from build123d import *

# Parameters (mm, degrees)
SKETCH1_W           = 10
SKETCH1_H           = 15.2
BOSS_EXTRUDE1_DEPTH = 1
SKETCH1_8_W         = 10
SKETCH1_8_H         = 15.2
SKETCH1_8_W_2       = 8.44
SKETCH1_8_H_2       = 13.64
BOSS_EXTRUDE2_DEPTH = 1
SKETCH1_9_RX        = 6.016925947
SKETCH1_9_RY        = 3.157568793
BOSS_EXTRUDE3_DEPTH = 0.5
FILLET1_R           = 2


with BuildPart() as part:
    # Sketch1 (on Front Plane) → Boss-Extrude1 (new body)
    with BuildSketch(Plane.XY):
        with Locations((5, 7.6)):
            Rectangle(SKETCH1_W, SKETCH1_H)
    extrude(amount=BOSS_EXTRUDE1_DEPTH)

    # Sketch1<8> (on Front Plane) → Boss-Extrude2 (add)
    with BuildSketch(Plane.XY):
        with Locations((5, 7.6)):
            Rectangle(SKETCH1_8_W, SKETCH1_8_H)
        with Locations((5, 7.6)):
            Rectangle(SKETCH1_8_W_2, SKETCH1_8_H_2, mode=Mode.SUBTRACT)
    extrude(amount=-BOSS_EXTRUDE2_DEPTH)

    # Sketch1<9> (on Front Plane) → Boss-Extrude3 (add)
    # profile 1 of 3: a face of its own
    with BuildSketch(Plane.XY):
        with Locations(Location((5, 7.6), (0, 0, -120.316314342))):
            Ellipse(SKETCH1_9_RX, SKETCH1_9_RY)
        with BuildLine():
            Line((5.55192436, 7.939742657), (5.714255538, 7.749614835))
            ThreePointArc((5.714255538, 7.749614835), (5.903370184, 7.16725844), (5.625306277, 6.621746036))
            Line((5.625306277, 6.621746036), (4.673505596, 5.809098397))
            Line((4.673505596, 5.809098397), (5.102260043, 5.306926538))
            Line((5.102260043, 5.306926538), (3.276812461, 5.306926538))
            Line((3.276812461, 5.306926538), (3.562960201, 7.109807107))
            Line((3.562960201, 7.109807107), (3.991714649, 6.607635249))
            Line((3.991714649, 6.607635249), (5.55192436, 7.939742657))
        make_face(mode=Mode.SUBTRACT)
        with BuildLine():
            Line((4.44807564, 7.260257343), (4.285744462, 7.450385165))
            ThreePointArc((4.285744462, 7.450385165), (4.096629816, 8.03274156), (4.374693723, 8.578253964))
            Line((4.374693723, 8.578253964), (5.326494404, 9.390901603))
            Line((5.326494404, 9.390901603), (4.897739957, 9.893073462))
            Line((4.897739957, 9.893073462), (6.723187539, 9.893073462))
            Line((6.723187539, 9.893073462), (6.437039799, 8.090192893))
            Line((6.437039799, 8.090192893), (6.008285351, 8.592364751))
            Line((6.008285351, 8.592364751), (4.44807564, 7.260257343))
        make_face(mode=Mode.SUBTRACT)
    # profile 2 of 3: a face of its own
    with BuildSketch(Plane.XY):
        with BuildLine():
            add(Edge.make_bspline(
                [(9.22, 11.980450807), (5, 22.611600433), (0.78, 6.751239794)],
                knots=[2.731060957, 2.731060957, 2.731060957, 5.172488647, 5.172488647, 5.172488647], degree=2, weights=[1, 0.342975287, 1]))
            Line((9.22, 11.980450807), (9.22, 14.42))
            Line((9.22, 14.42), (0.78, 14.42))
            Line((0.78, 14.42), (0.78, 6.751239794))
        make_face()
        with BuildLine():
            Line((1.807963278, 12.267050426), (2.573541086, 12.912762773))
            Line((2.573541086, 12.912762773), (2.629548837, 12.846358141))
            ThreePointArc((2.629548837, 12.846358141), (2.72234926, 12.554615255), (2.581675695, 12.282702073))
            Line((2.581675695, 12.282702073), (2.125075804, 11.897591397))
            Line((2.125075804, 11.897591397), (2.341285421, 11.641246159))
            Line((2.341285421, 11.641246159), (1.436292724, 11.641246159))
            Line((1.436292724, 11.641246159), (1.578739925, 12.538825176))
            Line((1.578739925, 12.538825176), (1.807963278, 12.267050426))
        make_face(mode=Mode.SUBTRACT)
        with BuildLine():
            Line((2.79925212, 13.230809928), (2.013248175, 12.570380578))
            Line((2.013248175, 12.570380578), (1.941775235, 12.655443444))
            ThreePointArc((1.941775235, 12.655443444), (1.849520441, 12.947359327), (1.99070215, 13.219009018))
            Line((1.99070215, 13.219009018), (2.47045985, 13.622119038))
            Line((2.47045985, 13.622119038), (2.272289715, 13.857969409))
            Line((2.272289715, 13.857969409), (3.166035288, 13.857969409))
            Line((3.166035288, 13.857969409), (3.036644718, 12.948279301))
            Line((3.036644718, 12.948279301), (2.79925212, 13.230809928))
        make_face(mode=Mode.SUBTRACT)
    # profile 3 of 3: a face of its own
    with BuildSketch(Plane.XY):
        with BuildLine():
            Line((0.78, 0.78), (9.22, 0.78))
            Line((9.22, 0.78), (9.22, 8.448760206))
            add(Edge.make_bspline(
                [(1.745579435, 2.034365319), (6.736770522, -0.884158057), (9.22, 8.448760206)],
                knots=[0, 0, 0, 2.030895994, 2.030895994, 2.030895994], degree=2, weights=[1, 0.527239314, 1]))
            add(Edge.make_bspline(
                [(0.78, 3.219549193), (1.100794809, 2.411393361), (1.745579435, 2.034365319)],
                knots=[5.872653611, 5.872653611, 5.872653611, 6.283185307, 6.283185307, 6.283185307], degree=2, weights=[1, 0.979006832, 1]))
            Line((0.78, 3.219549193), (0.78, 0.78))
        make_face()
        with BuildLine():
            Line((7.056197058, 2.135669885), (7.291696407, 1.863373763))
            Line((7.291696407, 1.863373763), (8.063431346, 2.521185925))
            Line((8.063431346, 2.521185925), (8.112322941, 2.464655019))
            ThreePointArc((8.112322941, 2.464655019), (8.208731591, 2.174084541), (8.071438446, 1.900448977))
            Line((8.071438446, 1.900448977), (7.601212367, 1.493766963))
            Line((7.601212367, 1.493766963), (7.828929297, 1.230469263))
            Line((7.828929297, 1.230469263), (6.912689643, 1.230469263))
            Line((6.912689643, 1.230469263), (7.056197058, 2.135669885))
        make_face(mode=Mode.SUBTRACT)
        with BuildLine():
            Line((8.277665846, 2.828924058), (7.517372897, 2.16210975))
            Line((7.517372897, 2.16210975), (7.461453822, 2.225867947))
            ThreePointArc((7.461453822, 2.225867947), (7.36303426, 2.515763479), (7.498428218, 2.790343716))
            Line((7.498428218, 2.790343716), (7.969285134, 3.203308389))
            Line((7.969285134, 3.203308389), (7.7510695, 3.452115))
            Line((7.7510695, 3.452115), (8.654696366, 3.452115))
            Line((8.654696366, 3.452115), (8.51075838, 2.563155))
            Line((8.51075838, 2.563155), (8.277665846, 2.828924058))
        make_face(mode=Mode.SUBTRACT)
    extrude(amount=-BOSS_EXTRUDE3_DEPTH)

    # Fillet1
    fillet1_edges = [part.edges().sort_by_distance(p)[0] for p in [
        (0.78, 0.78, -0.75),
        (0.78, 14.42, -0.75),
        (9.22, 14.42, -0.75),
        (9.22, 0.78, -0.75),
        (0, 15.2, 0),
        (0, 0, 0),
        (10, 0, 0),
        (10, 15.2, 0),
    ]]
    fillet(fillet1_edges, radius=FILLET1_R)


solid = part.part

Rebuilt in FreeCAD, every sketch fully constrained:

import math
import FreeCAD as App
import Part
import Sketcher
from FreeCAD import Vector
Q = App.Units.Quantity


def edges_at(feature, points):
    """Names of the edges that pass closest to the given points."""
    edges = feature.Shape.Edges
    near = lambda p: min(range(len(edges)), key=lambda i: edges[i].distToShape(Part.Vertex(*p))[0])
    return sorted({f"Edge{near(p) + 1}" for p in points})


def add_polygon(sketch, points):
    """Adds a closed chain of lines whose ends are joined by coincident constraints."""
    first, n = sketch.GeometryCount, len(points)
    for a, b in zip(points, points[1:] + points[:1]):
        sketch.addGeometry(Part.LineSegment(App.Vector(*a, 0), App.Vector(*b, 0)), False)
    for i in range(n):
        sketch.addConstraint(Sketcher.Constraint("Coincident", first + i, 2, first + (i + 1) % n, 1))

doc = App.newDocument("Part")
body = doc.addObject("PartDesign::Body", "Body")

# Sketch on XY plane
sketch1 = doc.addObject("Sketcher::SketchObject", "Sketch")
body.addObject(sketch1)
sketch1.AttachmentSupport = (doc.XY_Plane, [""])
sketch1.MapMode = "FlatFace"
add_polygon(sketch1, [(0, 15), (0, 0), (10, 0), (10, 15)])  # lines 0-3
sketch1.addConstraint(Sketcher.Constraint("Vertical", 0))
sketch1.addConstraint(Sketcher.Constraint("Horizontal", 1))
sketch1.addConstraint(Sketcher.Constraint("Vertical", 2))
sketch1.addConstraint(Sketcher.Constraint("Horizontal", 3))
sketch1.addConstraint(Sketcher.Constraint("Coincident", 0, 2, -1, 1))
sketch1.addConstraint(Sketcher.Constraint("DistanceX", 1, 1, 1, 2, Q("10 mm")))
sketch1.addConstraint(Sketcher.Constraint("DistanceY", 0, 2, 0, 1, Q("15.2 mm")))
pad1 = doc.addObject("PartDesign::Pad", "Pad")
body.addObject(pad1)
pad1.Profile = sketch1
pad1.Length = 1

# Sketch on XY plane
sketch2 = doc.addObject("Sketcher::SketchObject", "Sketch001")
body.addObject(sketch2)
sketch2.AttachmentSupport = (doc.XY_Plane, [""])
sketch2.MapMode = "FlatFace"
add_polygon(sketch2, [(0, 15), (0, 0), (10, 0), (10, 15)])  # lines 0-3
add_polygon(sketch2, [(9, 1), (1, 1), (1, 14), (9, 14)])  # lines 4-7
sketch2.addConstraint(Sketcher.Constraint("Vertical", 0))
sketch2.addConstraint(Sketcher.Constraint("Horizontal", 1))
sketch2.addConstraint(Sketcher.Constraint("Vertical", 2))
sketch2.addConstraint(Sketcher.Constraint("Horizontal", 3))
sketch2.addConstraint(Sketcher.Constraint("Horizontal", 4))
sketch2.addConstraint(Sketcher.Constraint("Vertical", 5))
sketch2.addConstraint(Sketcher.Constraint("Horizontal", 6))
sketch2.addConstraint(Sketcher.Constraint("Vertical", 7))
sketch2.addConstraint(Sketcher.Constraint("Coincident", 0, 2, -1, 1))
sketch2.addConstraint(Sketcher.Constraint("DistanceX", 1, 1, 1, 2, Q("10 mm")))
sketch2.addConstraint(Sketcher.Constraint("DistanceY", 0, 2, 0, 1, Q("15.2 mm")))
sketch2.addConstraint(Sketcher.Constraint("DistanceX", 4, 2, 4, 1, Q("8.44 mm")))
sketch2.addConstraint(Sketcher.Constraint("DistanceY", 5, 1, 5, 2, Q("13.64 mm")))
sketch2.addConstraint(Sketcher.Constraint("DistanceX", -1, 1, 4, 2, Q("0.78 mm")))
sketch2.addConstraint(Sketcher.Constraint("DistanceY", -1, 1, 4, 2, Q("0.78 mm")))
pad2 = doc.addObject("PartDesign::Pad", "Pad001")
body.addObject(pad2)
pad2.Profile = sketch2
pad2.Length = 1
pad2.Reversed = True

# Sketch on XY plane
sketch3 = doc.addObject("Sketcher::SketchObject", "Sketch002")
body.addObject(sketch3)
sketch3.AttachmentSupport = (doc.XY_Plane, [""])
sketch3.MapMode = "FlatFace"
sketch3.addGeometry(Part.Ellipse(Vector(1.962816, 2.405878, 0), Vector(7.725777, 6.006143, 0), Vector(5, 7.6, 0)), False)
sketch3.addGeometry(Part.LineSegment(Vector(6.008285, 8.592365, 0), Vector(4.448076, 7.260257, 0)), False)
sketch3.addGeometry(Part.LineSegment(Vector(4.448076, 7.260257, 0), Vector(4.285744, 7.450385, 0)), False)
sketch3.addGeometry(Part.ArcOfCircle(Part.Circle(Vector(4.894153, 7.969845, 0), Vector(0, 0, 1), 0.8), math.radians(130.490707), math.radians(220.490707)), False)
sketch3.addGeometry(Part.LineSegment(Vector(4.374694, 8.578254, 0), Vector(5.326494, 9.390902, 0)), False)
sketch3.addGeometry(Part.LineSegment(Vector(5.326494, 9.390902, 0), Vector(4.89774, 9.893073, 0)), False)
sketch3.addGeometry(Part.LineSegment(Vector(4.89774, 9.893073, 0), Vector(6.723188, 9.893073, 0)), False)
sketch3.addGeometry(Part.LineSegment(Vector(6.723188, 9.893073, 0), Vector(6.43704, 8.090193, 0)), False)
sketch3.addGeometry(Part.LineSegment(Vector(6.43704, 8.090193, 0), Vector(6.008285, 8.592365, 0)), False)
sketch3.addGeometry(Part.LineSegment(Vector(3.991715, 6.607635, 0), Vector(5.551924, 7.939743, 0)), False)
sketch3.addGeometry(Part.LineSegment(Vector(5.551924, 7.939743, 0), Vector(5.714256, 7.749615, 0)), False)
sketch3.addGeometry(Part.ArcOfCircle(Part.Circle(Vector(5.105847, 7.230155, 0), Vector(0, 0, 1), 0.8), math.radians(-49.509293), math.radians(40.490707)), False)
sketch3.addGeometry(Part.LineSegment(Vector(5.625306, 6.621746, 0), Vector(4.673506, 5.809098, 0)), False)
sketch3.addGeometry(Part.LineSegment(Vector(4.673506, 5.809098, 0), Vector(5.10226, 5.306927, 0)), False)
sketch3.addGeometry(Part.LineSegment(Vector(5.10226, 5.306927, 0), Vector(3.276812, 5.306927, 0)), False)
sketch3.addGeometry(Part.LineSegment(Vector(3.276812, 5.306927, 0), Vector(3.56296, 7.109807, 0)), False)
sketch3.addGeometry(Part.LineSegment(Vector(3.56296, 7.109807, 0), Vector(3.991715, 6.607635, 0)), False)
sketch3.addGeometry(Part.BSplineCurve([Vector(9.22, 11.980451, 0), Vector(5, 22.6116, 0), Vector(0.78, 6.75124, 0)], [3, 3], [2.731060957, 5.172488647], False, 2, [1, 0.342975287, 1], False), False)
sketch3.addGeometry(Part.LineSegment(Vector(9.22, 11.980451, 0), Vector(9.22, 14.42, 0)), False)
sketch3.addGeometry(Part.LineSegment(Vector(9.22, 14.42, 0), Vector(0.78, 14.42, 0)), False)
sketch3.addGeometry(Part.LineSegment(Vector(0.78, 14.42, 0), Vector(0.78, 6.75124, 0)), False)
sketch3.addGeometry(Part.LineSegment(Vector(1.807963, 12.26705, 0), Vector(2.573541, 12.912763, 0)), False)
sketch3.addGeometry(Part.LineSegment(Vector(2.573541, 12.912763, 0), Vector(2.629549, 12.846358, 0)), False)
sketch3.addGeometry(Part.ArcOfCircle(Part.Circle(Vector(2.323784, 12.588467, 0), Vector(0, 0, 1), 0.4), math.radians(-49.854666), math.radians(40.145334)), False)
sketch3.addGeometry(Part.LineSegment(Vector(2.581676, 12.282702, 0), Vector(2.125076, 11.897591, 0)), False)
sketch3.addGeometry(Part.LineSegment(Vector(2.125076, 11.897591, 0), Vector(2.341285, 11.641246, 0)), False)
sketch3.addGeometry(Part.LineSegment(Vector(2.341285, 11.641246, 0), Vector(1.436293, 11.641246, 0)), False)
sketch3.addGeometry(Part.LineSegment(Vector(1.436293, 11.641246, 0), Vector(1.57874, 12.538825, 0)), False)
sketch3.addGeometry(Part.LineSegment(Vector(1.57874, 12.538825, 0), Vector(1.807963, 12.26705, 0)), False)
sketch3.addGeometry(Part.LineSegment(Vector(2.799252, 13.23081, 0), Vector(2.013248, 12.570381, 0)), False)
sketch3.addGeometry(Part.LineSegment(Vector(2.013248, 12.570381, 0), Vector(1.941775, 12.655443, 0)), False)
sketch3.addGeometry(Part.ArcOfCircle(Part.Circle(Vector(2.248021, 12.912763, 0), Vector(0, 0, 1), 0.4), math.radians(130.038209), math.radians(220.038209)), False)
sketch3.addGeometry(Part.LineSegment(Vector(1.990702, 13.219009, 0), Vector(2.47046, 13.622119, 0)), False)
sketch3.addGeometry(Part.LineSegment(Vector(2.47046, 13.622119, 0), Vector(2.27229, 13.857969, 0)), False)
sketch3.addGeometry(Part.LineSegment(Vector(2.27229, 13.857969, 0), Vector(3.166035, 13.857969, 0)), False)
sketch3.addGeometry(Part.LineSegment(Vector(3.166035, 13.857969, 0), Vector(3.036645, 12.948279, 0)), False)
sketch3.addGeometry(Part.LineSegment(Vector(3.036645, 12.948279, 0), Vector(2.799252, 13.23081, 0)), False)
sketch3.addGeometry(Part.LineSegment(Vector(0.78, 0.78, 0), Vector(9.22, 0.78, 0)), False)
sketch3.addGeometry(Part.LineSegment(Vector(9.22, 0.78, 0), Vector(9.22, 8.44876, 0)), False)
sketch3.addGeometry(Part.BSplineCurve([Vector(1.745579, 2.034365, 0), Vector(6.736771, -0.884158, 0), Vector(9.22, 8.44876, 0)], [3, 3], [0, 2.030895994], False, 2, [1, 0.527239314, 1], False), False)
sketch3.addGeometry(Part.BSplineCurve([Vector(0.78, 3.219549, 0), Vector(1.100795, 2.411393, 0), Vector(1.745579, 2.034365, 0)], [3, 3], [5.872653611, 6.283185307], False, 2, [1, 0.979006832, 1], False), False)
sketch3.addGeometry(Part.LineSegment(Vector(0.78, 3.219549, 0), Vector(0.78, 0.78, 0)), False)
sketch3.addGeometry(Part.LineSegment(Vector(6.91269, 1.230469, 0), Vector(7.056197, 2.13567, 0)), False)
sketch3.addGeometry(Part.LineSegment(Vector(7.056197, 2.13567, 0), Vector(7.291696, 1.863374, 0)), False)
sketch3.addGeometry(Part.LineSegment(Vector(7.291696, 1.863374, 0), Vector(8.063431, 2.521186, 0)), False)
sketch3.addGeometry(Part.LineSegment(Vector(8.063431, 2.521186, 0), Vector(8.112323, 2.464655, 0)), False)
sketch3.addGeometry(Part.ArcOfCircle(Part.Circle(Vector(7.809778, 2.202994, 0), Vector(0, 0, 1), 0.4), math.radians(-49.144624), math.radians(40.855376)), False)
sketch3.addGeometry(Part.LineSegment(Vector(8.071438, 1.900449, 0), Vector(7.601212, 1.493767, 0)), False)
sketch3.addGeometry(Part.LineSegment(Vector(7.601212, 1.493767, 0), Vector(7.828929, 1.230469, 0)), False)
sketch3.addGeometry(Part.LineSegment(Vector(7.828929, 1.230469, 0), Vector(6.91269, 1.230469, 0)), False)
sketch3.addGeometry(Part.LineSegment(Vector(8.510758, 2.563155, 0), Vector(8.277666, 2.828924, 0)), False)
sketch3.addGeometry(Part.LineSegment(Vector(8.277666, 2.828924, 0), Vector(7.517373, 2.16211, 0)), False)
sketch3.addGeometry(Part.LineSegment(Vector(7.517373, 2.16211, 0), Vector(7.461454, 2.225868, 0)), False)
sketch3.addGeometry(Part.ArcOfCircle(Part.Circle(Vector(7.762179, 2.489619, 0), Vector(0, 0, 1), 0.4), math.radians(131.252355), math.radians(221.252355)), False)
sketch3.addGeometry(Part.LineSegment(Vector(7.498428, 2.790344, 0), Vector(7.969285, 3.203308, 0)), False)
sketch3.addGeometry(Part.LineSegment(Vector(7.969285, 3.203308, 0), Vector(7.751069, 3.452115, 0)), False)
sketch3.addGeometry(Part.LineSegment(Vector(7.751069, 3.452115, 0), Vector(8.654696, 3.452115, 0)), False)
sketch3.addGeometry(Part.LineSegment(Vector(8.654696, 3.452115, 0), Vector(8.510758, 2.563155, 0)), False)
sketch3.addConstraint(Sketcher.Constraint("Block", 0))
sketch3.addConstraint(Sketcher.Constraint("Block", 17))
sketch3.addConstraint(Sketcher.Constraint("Block", 39))
sketch3.addConstraint(Sketcher.Constraint("Block", 40))
sketch3.addConstraint(Sketcher.Constraint("Coincident", 1, 2, 2, 1))
sketch3.addConstraint(Sketcher.Constraint("Tangent", 2, 2, 3, 2))
sketch3.addConstraint(Sketcher.Constraint("Tangent", 3, 1, 4, 1))
sketch3.addConstraint(Sketcher.Constraint("Coincident", 4, 2, 5, 1))
sketch3.addConstraint(Sketcher.Constraint("Coincident", 5, 2, 6, 1))
sketch3.addConstraint(Sketcher.Constraint("Coincident", 6, 2, 7, 1))
sketch3.addConstraint(Sketcher.Constraint("Coincident", 7, 2, 8, 1))
sketch3.addConstraint(Sketcher.Constraint("Coincident", 8, 2, 1, 1))
sketch3.addConstraint(Sketcher.Constraint("Coincident", 9, 2, 10, 1))
sketch3.addConstraint(Sketcher.Constraint("Tangent", 10, 2, 11, 2))
sketch3.addConstraint(Sketcher.Constraint("Tangent", 11, 1, 12, 1))
sketch3.addConstraint(Sketcher.Constraint("Coincident", 12, 2, 13, 1))
sketch3.addConstraint(Sketcher.Constraint("Coincident", 13, 2, 14, 1))
sketch3.addConstraint(Sketcher.Constraint("Coincident", 14, 2, 15, 1))
sketch3.addConstraint(Sketcher.Constraint("Coincident", 15, 2, 16, 1))
sketch3.addConstraint(Sketcher.Constraint("Coincident", 16, 2, 9, 1))
sketch3.addConstraint(Sketcher.Constraint("Coincident", 17, 1, 18, 1))
sketch3.addConstraint(Sketcher.Constraint("Coincident", 18, 2, 19, 1))
sketch3.addConstraint(Sketcher.Constraint("Coincident", 19, 2, 20, 1))
sketch3.addConstraint(Sketcher.Constraint("Coincident", 20, 2, 17, 2))
sketch3.addConstraint(Sketcher.Constraint("Coincident", 21, 2, 22, 1))
sketch3.addConstraint(Sketcher.Constraint("Tangent", 22, 2, 23, 2))
sketch3.addConstraint(Sketcher.Constraint("Tangent", 23, 1, 24, 1))
sketch3.addConstraint(Sketcher.Constraint("Coincident", 24, 2, 25, 1))
sketch3.addConstraint(Sketcher.Constraint("Coincident", 25, 2, 26, 1))
sketch3.addConstraint(Sketcher.Constraint("Coincident", 26, 2, 27, 1))
sketch3.addConstraint(Sketcher.Constraint("Coincident", 27, 2, 28, 1))
sketch3.addConstraint(Sketcher.Constraint("Coincident", 28, 2, 21, 1))
sketch3.addConstraint(Sketcher.Constraint("Coincident", 29, 2, 30, 1))
sketch3.addConstraint(Sketcher.Constraint("Tangent", 30, 2, 31, 2))
sketch3.addConstraint(Sketcher.Constraint("Tangent", 31, 1, 32, 1))
sketch3.addConstraint(Sketcher.Constraint("Coincident", 32, 2, 33, 1))
sketch3.addConstraint(Sketcher.Constraint("Coincident", 33, 2, 34, 1))
sketch3.addConstraint(Sketcher.Constraint("Coincident", 34, 2, 35, 1))
sketch3.addConstraint(Sketcher.Constraint("Coincident", 35, 2, 36, 1))
sketch3.addConstraint(Sketcher.Constraint("Coincident", 36, 2, 29, 1))
sketch3.addConstraint(Sketcher.Constraint("Coincident", 37, 2, 38, 1))
sketch3.addConstraint(Sketcher.Constraint("Coincident", 38, 2, 39, 2))
sketch3.addConstraint(Sketcher.Constraint("Coincident", 40, 1, 41, 1))
sketch3.addConstraint(Sketcher.Constraint("Coincident", 41, 2, 37, 1))
sketch3.addConstraint(Sketcher.Constraint("Coincident", 42, 2, 43, 1))
sketch3.addConstraint(Sketcher.Constraint("Coincident", 43, 2, 44, 1))
sketch3.addConstraint(Sketcher.Constraint("Coincident", 44, 2, 45, 1))
sketch3.addConstraint(Sketcher.Constraint("Tangent", 45, 2, 46, 2))
sketch3.addConstraint(Sketcher.Constraint("Tangent", 46, 1, 47, 1))
sketch3.addConstraint(Sketcher.Constraint("Coincident", 47, 2, 48, 1))
sketch3.addConstraint(Sketcher.Constraint("Coincident", 48, 2, 49, 1))
sketch3.addConstraint(Sketcher.Constraint("Coincident", 49, 2, 42, 1))
sketch3.addConstraint(Sketcher.Constraint("Coincident", 50, 2, 51, 1))
sketch3.addConstraint(Sketcher.Constraint("Coincident", 51, 2, 52, 1))
sketch3.addConstraint(Sketcher.Constraint("Tangent", 52, 2, 53, 2))
sketch3.addConstraint(Sketcher.Constraint("Tangent", 53, 1, 54, 1))
sketch3.addConstraint(Sketcher.Constraint("Coincident", 54, 2, 55, 1))
sketch3.addConstraint(Sketcher.Constraint("Coincident", 55, 2, 56, 1))
sketch3.addConstraint(Sketcher.Constraint("Coincident", 56, 2, 57, 1))
sketch3.addConstraint(Sketcher.Constraint("Coincident", 57, 2, 50, 1))
sketch3.addConstraint(Sketcher.Constraint("Horizontal", 6))
sketch3.addConstraint(Sketcher.Constraint("Horizontal", 14))
sketch3.addConstraint(Sketcher.Constraint("Vertical", 18))
sketch3.addConstraint(Sketcher.Constraint("Horizontal", 19))
sketch3.addConstraint(Sketcher.Constraint("Vertical", 20))
sketch3.addConstraint(Sketcher.Constraint("Horizontal", 26))
sketch3.addConstraint(Sketcher.Constraint("Horizontal", 34))
sketch3.addConstraint(Sketcher.Constraint("Horizontal", 37))
sketch3.addConstraint(Sketcher.Constraint("Vertical", 38))
sketch3.addConstraint(Sketcher.Constraint("Vertical", 41))
sketch3.addConstraint(Sketcher.Constraint("Horizontal", 49))
sketch3.addConstraint(Sketcher.Constraint("Horizontal", 56))
sketch3.addConstraint(Sketcher.Constraint("Equal", 3, 11))
sketch3.addConstraint(Sketcher.Constraint("Equal", 23, 31))
sketch3.addConstraint(Sketcher.Constraint("Equal", 31, 46))
sketch3.addConstraint(Sketcher.Constraint("Equal", 46, 53))
sketch3.addConstraint(Sketcher.Constraint("Perpendicular", 1, 2))
sketch3.addConstraint(Sketcher.Constraint("Perpendicular", 2, 4))
sketch3.addConstraint(Sketcher.Constraint("Perpendicular", 4, 5))
sketch3.addConstraint(Sketcher.Constraint("Parallel", 5, 8))
sketch3.addConstraint(Sketcher.Constraint("Perpendicular", 8, 9))
sketch3.addConstraint(Sketcher.Constraint("Perpendicular", 9, 10))
sketch3.addConstraint(Sketcher.Constraint("Perpendicular", 10, 12))
sketch3.addConstraint(Sketcher.Constraint("Perpendicular", 12, 13))
sketch3.addConstraint(Sketcher.Constraint("Parallel", 7, 15))
sketch3.addConstraint(Sketcher.Constraint("Parallel", 13, 16))
sketch3.addConstraint(Sketcher.Constraint("Perpendicular", 21, 22))
sketch3.addConstraint(Sketcher.Constraint("Perpendicular", 22, 24))
sketch3.addConstraint(Sketcher.Constraint("Perpendicular", 24, 25))
sketch3.addConstraint(Sketcher.Constraint("Parallel", 25, 28))
sketch3.addConstraint(Sketcher.Constraint("Perpendicular", 29, 30))
sketch3.addConstraint(Sketcher.Constraint("Perpendicular", 30, 32))
sketch3.addConstraint(Sketcher.Constraint("Perpendicular", 32, 33))
sketch3.addConstraint(Sketcher.Constraint("Parallel", 33, 36))
sketch3.addConstraint(Sketcher.Constraint("Parallel", 43, 45))
sketch3.addConstraint(Sketcher.Constraint("Perpendicular", 45, 47))
sketch3.addConstraint(Sketcher.Constraint("Perpendicular", 47, 48))
sketch3.addConstraint(Sketcher.Constraint("Perpendicular", 50, 51))
sketch3.addConstraint(Sketcher.Constraint("Perpendicular", 51, 52))
sketch3.addConstraint(Sketcher.Constraint("Perpendicular", 52, 54))
sketch3.addConstraint(Sketcher.Constraint("Perpendicular", 54, 55))
sketch3.addConstraint(Sketcher.Constraint("Horizontal", 31, 3, 21, 2))
sketch3.addConstraint(Sketcher.Constraint("Equal", 6, 14))
sketch3.addConstraint(Sketcher.Constraint("Equal", 20, 38))
sketch3.addConstraint(Sketcher.Constraint("Equal", 5, 8))
sketch3.addConstraint(Sketcher.Constraint("Equal", 1, 9))
sketch3.addConstraint(Sketcher.Constraint("Equal", 2, 10))
sketch3.addConstraint(Sketcher.Constraint("Equal", 4, 12))
sketch3.addConstraint(Sketcher.Constraint("Equal", 8, 13))
sketch3.addConstraint(Sketcher.Constraint("Radius", 3, Q("0.8 mm")))
sketch3.addConstraint(Sketcher.Constraint("Radius", 23, Q("0.4 mm")))
sketch3.addConstraint(Sketcher.Constraint("Distance", 2, Q("0.25 mm")))
sketch3.addConstraint(Sketcher.Constraint("DistanceY", -1, 1, 18, 2, Q("14.42 mm")))
sketch3.addConstraint(Sketcher.Constraint("DistanceX", 49, 2, 49, 1, Q("0.91624 mm")))
sketch3.addConstraint(Sketcher.Constraint("DistanceY", -1, 1, 4, 2, Q("9.390902 mm")))
sketch3.addConstraint(Sketcher.Constraint("DistanceY", -1, 1, 12, 2, Q("5.809098 mm")))
sketch3.addConstraint(Sketcher.Constraint("DistanceX", 53, 3, 46, 3, Q("0.047599 mm")))
sketch3.addConstraint(Sketcher.Constraint("DistanceY", 11, 3, 3, 1, Q("1.348099 mm")))
sketch3.addConstraint(Sketcher.Constraint("DistanceX", 3, 1, 4, 2, Q("0.951801 mm")))
sketch3.addConstraint(Sketcher.Constraint("DistanceX", 21, 2, 5, 2, Q("2.324199 mm")))
sketch3.addConstraint(Sketcher.Constraint("DistanceX", 24, 2, 23, 1, Q("0.4566 mm")))
sketch3.addConstraint(Sketcher.Constraint("DistanceX", 23, 3, 25, 2, Q("0.017501 mm")))
sketch3.addConstraint(Sketcher.Constraint("DistanceX", 42, 2, 43, 2, Q("0.235499 mm")))
sketch3.addConstraint(Sketcher.Constraint("DistanceY", 48, 2, 42, 2, Q("0.905201 mm")))
sketch3.addConstraint(Sketcher.Constraint("DistanceY", 42, 2, 52, 2, Q("0.090198 mm")))
sketch3.addConstraint(Sketcher.Constraint("DistanceY", 45, 2, 57, 2, Q("0.0985 mm")))
sketch3.addConstraint(Sketcher.Constraint("Distance", 5, Q("0.660308 mm")))
sketch3.addConstraint(Sketcher.Constraint("Distance", 22, Q("0.08687 mm")))
sketch3.addConstraint(Sketcher.Constraint("Distance", 25, Q("0.33535 mm")))
sketch3.addConstraint(Sketcher.Constraint("Distance", 29, Q("1.02663 mm")))
sketch3.addConstraint(Sketcher.Constraint("Distance", 32, Q("0.62663 mm")))
sketch3.addConstraint(Sketcher.Constraint("Distance", 45, Q("0.07474 mm")))
sketch3.addConstraint(Sketcher.Constraint("Distance", 48, Q("0.34811 mm")))
sketch3.addConstraint(Sketcher.Constraint("Distance", 51, Q("1.01128 mm")))
sketch3.addConstraint(Sketcher.Constraint("DistanceX", 6, 1, 6, 2, Q("1.825448 mm")))
sketch3.addConstraint(Sketcher.Constraint("DistanceX", 26, 2, 26, 1, Q("0.904993 mm")))
sketch3.addConstraint(Sketcher.Constraint("DistanceX", 34, 1, 34, 2, Q("0.893746 mm")))
sketch3.addConstraint(Sketcher.Constraint("DistanceX", 56, 1, 56, 2, Q("0.903627 mm")))
sketch3.addConstraint(Sketcher.Constraint("DistanceX", -1, 1, 31, 3, Q("2.248021 mm")))
sketch3.addConstraint(Sketcher.Constraint("DistanceX", -1, 1, 53, 3, Q("7.762179 mm")))
sketch3.addConstraint(Sketcher.Constraint("DistanceY", -1, 1, 53, 3, Q("2.489619 mm")))
sketch3.addConstraint(Sketcher.Constraint("DistanceX", -1, 1, 5, 2, Q("4.89774 mm")))
sketch3.addConstraint(Sketcher.Constraint("DistanceX", -1, 1, 7, 2, Q("6.43704 mm")))
sketch3.addConstraint(Sketcher.Constraint("DistanceX", -1, 1, 13, 2, Q("5.10226 mm")))
sketch3.addConstraint(Sketcher.Constraint("DistanceY", -1, 1, 22, 2, Q("12.846358 mm")))
sketch3.addConstraint(Sketcher.Constraint("DistanceX", -1, 1, 27, 2, Q("1.57874 mm")))
sketch3.addConstraint(Sketcher.Constraint("DistanceY", -1, 1, 28, 2, Q("12.26705 mm")))
sketch3.addConstraint(Sketcher.Constraint("DistanceX", -1, 1, 29, 2, Q("2.013248 mm")))
sketch3.addConstraint(Sketcher.Constraint("DistanceY", -1, 1, 29, 2, Q("12.570381 mm")))
sketch3.addConstraint(Sketcher.Constraint("DistanceX", -1, 1, 33, 2, Q("2.27229 mm")))
sketch3.addConstraint(Sketcher.Constraint("DistanceY", -1, 1, 35, 2, Q("12.948279 mm")))
sketch3.addConstraint(Sketcher.Constraint("DistanceY", -1, 1, 42, 2, Q("2.13567 mm")))
sketch3.addConstraint(Sketcher.Constraint("DistanceX", -1, 1, 44, 2, Q("8.063431 mm")))
sketch3.addConstraint(Sketcher.Constraint("DistanceY", -1, 1, 46, 1, Q("1.900449 mm")))
sketch3.addConstraint(Sketcher.Constraint("DistanceY", -1, 1, 51, 2, Q("2.16211 mm")))
sketch3.addConstraint(Sketcher.Constraint("DistanceY", -1, 1, 54, 2, Q("3.203308 mm")))
sketch3.addConstraint(Sketcher.Constraint("DistanceX", -1, 1, 55, 2, Q("7.751069 mm")))
sketch3.addConstraint(Sketcher.Constraint("DistanceX", 42, 2, 46, 3, Q("0.753581 mm")))
pad3 = doc.addObject("PartDesign::Pad", "Pad002")
body.addObject(pad3)
pad3.Profile = sketch3
pad3.Length = 0.5
pad3.Reversed = True
doc.recompute()

fillet = doc.addObject("PartDesign::Fillet", "Fillet")
body.addObject(fillet)
fillet.Base = (pad3, edges_at(pad3, [
    (0.78, 0.78, -0.75),
    (0.78, 14.42, -0.75),
    (9.22, 14.42, -0.75),
    (9.22, 0.78, -0.75),
    (0, 15.2, 0),
    (0, 0, 0),
    (10, 0, 0),
    (10, 15.2, 0),
]))
fillet.Radius = 2

doc.recompute()
